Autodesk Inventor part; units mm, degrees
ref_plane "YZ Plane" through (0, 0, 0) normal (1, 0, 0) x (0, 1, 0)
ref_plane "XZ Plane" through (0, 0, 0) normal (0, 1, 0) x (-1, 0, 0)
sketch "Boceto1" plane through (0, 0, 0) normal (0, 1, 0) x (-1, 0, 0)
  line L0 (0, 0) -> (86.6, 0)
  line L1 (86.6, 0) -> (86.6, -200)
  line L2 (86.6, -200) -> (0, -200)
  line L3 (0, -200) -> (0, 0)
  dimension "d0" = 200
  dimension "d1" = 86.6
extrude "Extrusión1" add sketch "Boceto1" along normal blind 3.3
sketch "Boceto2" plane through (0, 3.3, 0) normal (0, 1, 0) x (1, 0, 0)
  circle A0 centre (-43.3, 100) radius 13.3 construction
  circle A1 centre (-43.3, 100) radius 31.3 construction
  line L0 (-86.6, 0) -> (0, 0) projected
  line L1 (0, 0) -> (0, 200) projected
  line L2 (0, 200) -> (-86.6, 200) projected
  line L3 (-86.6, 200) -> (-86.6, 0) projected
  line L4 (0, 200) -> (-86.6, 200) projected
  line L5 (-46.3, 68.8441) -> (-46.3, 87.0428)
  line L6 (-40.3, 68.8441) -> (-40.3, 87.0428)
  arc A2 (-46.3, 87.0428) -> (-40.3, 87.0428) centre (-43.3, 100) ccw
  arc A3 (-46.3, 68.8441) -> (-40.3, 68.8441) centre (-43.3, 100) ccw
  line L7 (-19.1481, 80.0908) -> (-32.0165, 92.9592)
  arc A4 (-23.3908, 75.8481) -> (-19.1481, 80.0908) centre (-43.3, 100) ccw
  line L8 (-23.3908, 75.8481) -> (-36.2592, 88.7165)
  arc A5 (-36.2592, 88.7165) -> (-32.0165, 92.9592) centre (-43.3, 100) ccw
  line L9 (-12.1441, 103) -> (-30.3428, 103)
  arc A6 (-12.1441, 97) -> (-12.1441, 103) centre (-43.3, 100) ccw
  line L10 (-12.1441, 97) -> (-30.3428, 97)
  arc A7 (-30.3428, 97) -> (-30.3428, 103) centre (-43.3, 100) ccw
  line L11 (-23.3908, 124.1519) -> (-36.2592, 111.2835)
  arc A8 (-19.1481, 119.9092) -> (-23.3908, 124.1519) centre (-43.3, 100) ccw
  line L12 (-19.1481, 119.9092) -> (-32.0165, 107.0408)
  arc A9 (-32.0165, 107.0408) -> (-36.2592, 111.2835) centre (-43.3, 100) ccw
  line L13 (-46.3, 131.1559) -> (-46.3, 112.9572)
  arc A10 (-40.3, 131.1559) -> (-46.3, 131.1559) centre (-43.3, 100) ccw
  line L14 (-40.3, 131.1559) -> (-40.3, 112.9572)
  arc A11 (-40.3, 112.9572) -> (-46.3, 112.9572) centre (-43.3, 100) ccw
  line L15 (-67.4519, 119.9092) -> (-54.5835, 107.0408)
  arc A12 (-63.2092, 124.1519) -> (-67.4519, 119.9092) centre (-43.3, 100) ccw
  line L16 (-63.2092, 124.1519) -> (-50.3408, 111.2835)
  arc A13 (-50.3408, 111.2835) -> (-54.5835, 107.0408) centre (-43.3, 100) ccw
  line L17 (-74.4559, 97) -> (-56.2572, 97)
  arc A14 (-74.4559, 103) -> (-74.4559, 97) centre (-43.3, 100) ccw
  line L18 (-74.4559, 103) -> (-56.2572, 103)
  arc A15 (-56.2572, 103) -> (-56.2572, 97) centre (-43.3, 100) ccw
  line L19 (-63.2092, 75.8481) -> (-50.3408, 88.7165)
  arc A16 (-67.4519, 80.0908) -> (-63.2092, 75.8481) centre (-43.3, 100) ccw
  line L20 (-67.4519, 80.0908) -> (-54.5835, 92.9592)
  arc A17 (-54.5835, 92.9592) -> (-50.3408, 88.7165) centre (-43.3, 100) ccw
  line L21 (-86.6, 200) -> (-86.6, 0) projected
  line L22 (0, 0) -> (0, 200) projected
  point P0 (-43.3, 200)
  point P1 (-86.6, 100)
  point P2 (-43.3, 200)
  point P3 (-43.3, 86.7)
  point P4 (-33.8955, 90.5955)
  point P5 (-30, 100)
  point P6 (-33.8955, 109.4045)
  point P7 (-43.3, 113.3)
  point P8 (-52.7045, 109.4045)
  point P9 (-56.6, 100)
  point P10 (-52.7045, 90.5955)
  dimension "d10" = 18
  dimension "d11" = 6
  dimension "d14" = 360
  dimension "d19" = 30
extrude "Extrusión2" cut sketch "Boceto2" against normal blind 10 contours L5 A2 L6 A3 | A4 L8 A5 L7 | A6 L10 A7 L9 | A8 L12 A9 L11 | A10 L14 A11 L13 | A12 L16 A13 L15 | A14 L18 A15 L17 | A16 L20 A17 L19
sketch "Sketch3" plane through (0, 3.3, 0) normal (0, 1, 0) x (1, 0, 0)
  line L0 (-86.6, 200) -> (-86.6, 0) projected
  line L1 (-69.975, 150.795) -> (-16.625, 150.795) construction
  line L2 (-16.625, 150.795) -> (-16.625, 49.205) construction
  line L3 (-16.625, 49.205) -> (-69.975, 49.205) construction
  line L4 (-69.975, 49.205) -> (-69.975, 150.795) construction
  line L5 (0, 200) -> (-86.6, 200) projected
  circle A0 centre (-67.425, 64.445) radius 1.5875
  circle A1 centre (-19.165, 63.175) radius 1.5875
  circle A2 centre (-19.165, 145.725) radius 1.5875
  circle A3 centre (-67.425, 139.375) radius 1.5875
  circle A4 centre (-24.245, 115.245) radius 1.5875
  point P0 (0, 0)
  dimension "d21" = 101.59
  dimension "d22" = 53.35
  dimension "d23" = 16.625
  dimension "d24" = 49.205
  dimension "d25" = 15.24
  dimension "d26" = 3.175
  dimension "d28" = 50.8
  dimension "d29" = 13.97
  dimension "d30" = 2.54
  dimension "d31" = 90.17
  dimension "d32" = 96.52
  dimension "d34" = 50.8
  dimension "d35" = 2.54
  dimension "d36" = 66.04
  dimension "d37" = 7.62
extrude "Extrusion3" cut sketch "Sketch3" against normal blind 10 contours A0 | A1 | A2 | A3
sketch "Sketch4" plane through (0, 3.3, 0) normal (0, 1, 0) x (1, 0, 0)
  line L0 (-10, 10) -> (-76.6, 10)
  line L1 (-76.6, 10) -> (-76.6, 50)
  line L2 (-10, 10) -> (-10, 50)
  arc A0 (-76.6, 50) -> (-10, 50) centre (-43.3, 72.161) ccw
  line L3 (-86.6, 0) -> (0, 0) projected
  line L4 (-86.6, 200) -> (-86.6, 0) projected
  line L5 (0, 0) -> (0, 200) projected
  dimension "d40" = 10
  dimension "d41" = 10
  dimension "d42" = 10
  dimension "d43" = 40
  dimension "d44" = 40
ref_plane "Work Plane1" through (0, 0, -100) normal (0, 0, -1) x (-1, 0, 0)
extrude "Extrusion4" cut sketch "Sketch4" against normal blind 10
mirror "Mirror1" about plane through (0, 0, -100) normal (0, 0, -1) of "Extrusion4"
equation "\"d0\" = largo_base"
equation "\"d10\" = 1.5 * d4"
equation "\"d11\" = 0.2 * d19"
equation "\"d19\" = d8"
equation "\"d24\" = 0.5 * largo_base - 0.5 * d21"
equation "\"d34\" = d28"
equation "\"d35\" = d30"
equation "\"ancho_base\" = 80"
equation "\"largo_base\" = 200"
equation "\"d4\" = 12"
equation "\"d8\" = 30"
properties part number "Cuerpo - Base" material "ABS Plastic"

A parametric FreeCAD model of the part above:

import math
import FreeCAD as App
import Part
import Sketcher
Q = App.Units.Quantity

doc = App.newDocument("Part")
body = doc.addObject("PartDesign::Body", "Body")

# Sketch on XZ plane
sketch1 = body.newObject("Sketcher::SketchObject", "Sketch")
sketch1.AttachmentSupport = (doc.getObject("XZ_Plane"), [""])
sketch1.MapMode = "FlatFace"
sketch1.addGeometry([
    Part.LineSegment(App.Vector(-86.6, 0, 0), App.Vector(0, 0, 0)),
    Part.LineSegment(App.Vector(0, 0, 0), App.Vector(0, -200, 0)),
    Part.LineSegment(App.Vector(0, -200, 0), App.Vector(-86.6, -200, 0)),
    Part.LineSegment(App.Vector(-86.6, -200, 0), App.Vector(-86.6, 0, 0)),
], False)
sketch1.addConstraint([
    Sketcher.Constraint("Coincident", 0, 2, 1, 1),
    Sketcher.Constraint("Coincident", 1, 2, 2, 1),
    Sketcher.Constraint("Coincident", 2, 2, 3, 1),
    Sketcher.Constraint("Coincident", 3, 2, 0, 1),
    Sketcher.Constraint("Horizontal", 0),
    Sketcher.Constraint("Vertical", 1),
    Sketcher.Constraint("Horizontal", 2),
    Sketcher.Constraint("Vertical", 3),
    Sketcher.Constraint("Coincident", 0, 2, -1, 1),
    Sketcher.Constraint("DistanceY", 1, 2, 1, 1, Q("200 mm")),
    Sketcher.Constraint("DistanceX", 0, 1, 0, 2, Q("86.6 mm")),
])
pad1 = body.newObject("PartDesign::Pad", "Pad")
pad1.Profile = sketch1
pad1.Length = 3.3
pad1.Reversed = True

# Sketch on XZ plane
sketch2 = body.newObject("Sketcher::SketchObject", "Sketch001")
sketch2.AttachmentSupport = (doc.getObject("XZ_Plane"), [""])
sketch2.MapMode = "FlatFace"
sketch2.AttachmentOffset = App.Placement(App.Vector(0, 0, -3.3), App.Rotation())
sketch2.addGeometry([
    Part.LineSegment(App.Vector(-46.3, -87.0428, 0), App.Vector(-46.3, -68.8441, 0)),  # 0
    Part.ArcOfCircle(Part.Circle(App.Vector(-43.3, -100, 0), App.Vector(0, 0, 1), 31.300002), math.radians(84.499949), math.radians(95.500051)),  # 1
    Part.LineSegment(App.Vector(-40.3, -68.8441, 0), App.Vector(-40.3, -87.0428, 0)),  # 2
    Part.ArcOfCircle(Part.Circle(App.Vector(-43.3, -100, 0), App.Vector(0, 0, 1), 13.299964), math.radians(76.963923), math.radians(103.036077)),  # 3
    Part.ArcOfCircle(Part.Circle(App.Vector(-43.3, -100, 0), App.Vector(0, 0, 1), 31.300008), math.radians(39.499873), math.radians(50.500127)),  # 4
    Part.LineSegment(App.Vector(-19.1481, -80.0908, 0), App.Vector(-32.0165, -92.9592, 0)),  # 5
    Part.ArcOfCircle(Part.Circle(App.Vector(-43.3, -100, 0), App.Vector(0, 0, 1), 13.300009), math.radians(31.963783), math.radians(58.036217)),  # 6
    Part.LineSegment(App.Vector(-36.2592, -88.7165, 0), App.Vector(-23.3908, -75.8481, 0)),  # 7
    Part.ArcOfCircle(Part.Circle(App.Vector(-43.3, -100, 0), App.Vector(0, 0, 1), 31.300002), math.radians(-5.500051), math.radians(5.500051)),  # 8
    Part.LineSegment(App.Vector(-12.1441, -103, 0), App.Vector(-30.3428, -103, 0)),  # 9
    Part.ArcOfCircle(Part.Circle(App.Vector(-43.3, -100, 0), App.Vector(0, 0, 1), 13.299964), math.radians(-13.036077), math.radians(13.036077)),  # 10
    Part.LineSegment(App.Vector(-30.3428, -97, 0), App.Vector(-12.1441, -97, 0)),  # 11
    Part.ArcOfCircle(Part.Circle(App.Vector(-43.3, -100, 0), App.Vector(0, 0, 1), 31.300008), math.radians(-50.500127), math.radians(-39.499873)),  # 12
    Part.LineSegment(App.Vector(-23.3908, -124.1519, 0), App.Vector(-36.2592, -111.2835, 0)),  # 13
    Part.ArcOfCircle(Part.Circle(App.Vector(-43.3, -100, 0), App.Vector(0, 0, 1), 13.300009), math.radians(-58.036217), math.radians(-31.963783)),  # 14
    Part.LineSegment(App.Vector(-32.0165, -107.0408, 0), App.Vector(-19.1481, -119.9092, 0)),  # 15
    Part.ArcOfCircle(Part.Circle(App.Vector(-43.3, -100, 0), App.Vector(0, 0, 1), 31.300002), math.radians(-95.500051), math.radians(-84.499949)),  # 16
    Part.LineSegment(App.Vector(-46.3, -131.1559, 0), App.Vector(-46.3, -112.9572, 0)),  # 17
    Part.ArcOfCircle(Part.Circle(App.Vector(-43.3, -100, 0), App.Vector(0, 0, 1), 13.299964), math.radians(-103.036077), math.radians(-76.963923)),  # 18
    Part.LineSegment(App.Vector(-40.3, -112.9572, 0), App.Vector(-40.3, -131.1559, 0)),  # 19
    Part.ArcOfCircle(Part.Circle(App.Vector(-43.3, -100, 0), App.Vector(0, 0, 1), 31.300008), math.radians(-140.500127), math.radians(-129.499873)),  # 20
    Part.LineSegment(App.Vector(-67.4519, -119.9092, 0), App.Vector(-54.5835, -107.0408, 0)),  # 21
    Part.ArcOfCircle(Part.Circle(App.Vector(-43.3, -100, 0), App.Vector(0, 0, 1), 13.300009), math.radians(-148.036217), math.radians(-121.963783)),  # 22
    Part.LineSegment(App.Vector(-50.3408, -111.2835, 0), App.Vector(-63.2092, -124.1519, 0)),  # 23
    Part.ArcOfCircle(Part.Circle(App.Vector(-43.3, -100, 0), App.Vector(0, 0, 1), 31.300002), math.radians(174.499949), math.radians(185.500051)),  # 24
    Part.LineSegment(App.Vector(-74.4559, -97, 0), App.Vector(-56.2572, -97, 0)),  # 25
    Part.ArcOfCircle(Part.Circle(App.Vector(-43.3, -100, 0), App.Vector(0, 0, 1), 13.299964), math.radians(166.963923), math.radians(193.036077)),  # 26
    Part.LineSegment(App.Vector(-56.2572, -103, 0), App.Vector(-74.4559, -103, 0)),  # 27
    Part.ArcOfCircle(Part.Circle(App.Vector(-43.3, -100, 0), App.Vector(0, 0, 1), 31.300008), math.radians(129.499873), math.radians(140.500127)),  # 28
    Part.LineSegment(App.Vector(-63.2092, -75.8481, 0), App.Vector(-50.3408, -88.7165, 0)),  # 29
    Part.ArcOfCircle(Part.Circle(App.Vector(-43.3, -100, 0), App.Vector(0, 0, 1), 13.300009), math.radians(121.963783), math.radians(148.036217)),  # 30
    Part.LineSegment(App.Vector(-54.5835, -92.9592, 0), App.Vector(-67.4519, -80.0908, 0)),  # 31
], False)
sketch2.addConstraint([
    Sketcher.Constraint("Coincident", 0, 2, 1, 2),
    Sketcher.Constraint("Coincident", 1, 1, 2, 1),
    Sketcher.Constraint("Coincident", 2, 2, 3, 1),
    Sketcher.Constraint("Coincident", 3, 2, 0, 1),
    Sketcher.Constraint("Coincident", 4, 1, 5, 1),
    Sketcher.Constraint("Coincident", 5, 2, 6, 1),
    Sketcher.Constraint("Coincident", 6, 2, 7, 1),
    Sketcher.Constraint("Coincident", 7, 2, 4, 2),
    Sketcher.Constraint("Coincident", 8, 1, 9, 1),
    Sketcher.Constraint("Coincident", 9, 2, 10, 1),
    Sketcher.Constraint("Coincident", 10, 2, 11, 1),
    Sketcher.Constraint("Coincident", 11, 2, 8, 2),
    Sketcher.Constraint("Coincident", 12, 1, 13, 1),
    Sketcher.Constraint("Coincident", 13, 2, 14, 1),
    Sketcher.Constraint("Coincident", 14, 2, 15, 1),
    Sketcher.Constraint("Coincident", 15, 2, 12, 2),
    Sketcher.Constraint("Coincident", 16, 1, 17, 1),
    Sketcher.Constraint("Coincident", 17, 2, 18, 1),
    Sketcher.Constraint("Coincident", 18, 2, 19, 1),
    Sketcher.Constraint("Coincident", 19, 2, 16, 2),
    Sketcher.Constraint("Coincident", 20, 1, 21, 1),
    Sketcher.Constraint("Coincident", 21, 2, 22, 1),
    Sketcher.Constraint("Coincident", 22, 2, 23, 1),
    Sketcher.Constraint("Coincident", 23, 2, 20, 2),
    Sketcher.Constraint("Coincident", 24, 1, 25, 1),
    Sketcher.Constraint("Coincident", 25, 2, 26, 1),
    Sketcher.Constraint("Coincident", 26, 2, 27, 1),
    Sketcher.Constraint("Coincident", 27, 2, 24, 2),
    Sketcher.Constraint("Coincident", 28, 1, 29, 1),
    Sketcher.Constraint("Coincident", 29, 2, 30, 1),
    Sketcher.Constraint("Coincident", 30, 2, 31, 1),
    Sketcher.Constraint("Coincident", 31, 2, 28, 2),
    Sketcher.Constraint("Vertical", 0),
    Sketcher.Constraint("Vertical", 2),
    Sketcher.Constraint("Horizontal", 9),
    Sketcher.Constraint("Horizontal", 11),
    Sketcher.Constraint("Vertical", 17),
    Sketcher.Constraint("Vertical", 19),
    Sketcher.Constraint("Horizontal", 25),
    Sketcher.Constraint("Horizontal", 27),
    Sketcher.Constraint("Coincident", 3, 3, 1, 3),
    Sketcher.Constraint("Coincident", 4, 3, 1, 3),
    Sketcher.Constraint("Coincident", 6, 3, 1, 3),
    Sketcher.Constraint("Coincident", 8, 3, 1, 3),
    Sketcher.Constraint("Coincident", 10, 3, 1, 3),
    Sketcher.Constraint("Coincident", 12, 3, 1, 3),
    Sketcher.Constraint("Coincident", 14, 3, 1, 3),
    Sketcher.Constraint("Coincident", 16, 3, 1, 3),
    Sketcher.Constraint("Coincident", 18, 3, 1, 3),
    Sketcher.Constraint("Coincident", 20, 3, 1, 3),
    Sketcher.Constraint("Coincident", 22, 3, 1, 3),
    Sketcher.Constraint("Coincident", 24, 3, 1, 3),
    Sketcher.Constraint("Coincident", 26, 3, 1, 3),
    Sketcher.Constraint("Coincident", 28, 3, 1, 3),
    Sketcher.Constraint("Coincident", 30, 3, 1, 3),
    Sketcher.Constraint("Equal", 1, 4),
    Sketcher.Constraint("Equal", 3, 6),
    Sketcher.Constraint("Equal", 4, 8),
    Sketcher.Constraint("Equal", 6, 10),
    Sketcher.Constraint("Equal", 8, 12),
    Sketcher.Constraint("Equal", 10, 14),
    Sketcher.Constraint("Equal", 12, 16),
    Sketcher.Constraint("Equal", 14, 18),
    Sketcher.Constraint("Equal", 16, 20),
    Sketcher.Constraint("Equal", 18, 22),
    Sketcher.Constraint("Equal", 20, 24),
    Sketcher.Constraint("Equal", 22, 26),
    Sketcher.Constraint("Equal", 24, 28),
    Sketcher.Constraint("Equal", 26, 30),
    Sketcher.Constraint("Parallel", 5, 7),
    Sketcher.Constraint("Perpendicular", 7, 13),
    Sketcher.Constraint("Parallel", 13, 15),
    Sketcher.Constraint("Perpendicular", 15, 21),
    Sketcher.Constraint("Parallel", 21, 23),
    Sketcher.Constraint("Perpendicular", 23, 29),
    Sketcher.Constraint("Parallel", 29, 31),
    Sketcher.Constraint("Horizontal", 0, 2, 1, 1),
    Sketcher.Constraint("Horizontal", 17, 2, 18, 2),
    Sketcher.Constraint("Horizontal", 15, 2, 20, 1),
    Sketcher.Constraint("Horizontal", 14, 2, 21, 2),
    Sketcher.Constraint("Horizontal", 13, 2, 22, 2),
    Sketcher.Constraint("Horizontal", 11, 2, 24, 1),
    Sketcher.Constraint("Horizontal", 9, 2, 26, 2),
    Sketcher.Constraint("Horizontal", 7, 2, 28, 1),
    Sketcher.Constraint("Horizontal", 5, 2, 30, 2),
    Sketcher.Constraint("Vertical", 9, 2, 10, 2),
    Sketcher.Constraint("Vertical", 7, 2, 12, 1),
    Sketcher.Constraint("Vertical", 5, 2, 14, 2),
    Sketcher.Constraint("Vertical", 3, 2, 16, 1),
    Sketcher.Constraint("Equal", 27, 0),
    Sketcher.Constraint("Equal", 5, 7),
    Sketcher.Constraint("DistanceX", 0, 2, 1, 1, Q("6 mm")),
    Sketcher.Constraint("Radius", 1, Q("31.3 mm")),
    Sketcher.Constraint("Radius", 3, Q("13.3 mm")),
    Sketcher.Constraint("DistanceY", 1, 3, -1, 1, Q("100 mm")),
    Sketcher.Constraint("DistanceX", 1, 3, -1, 1, Q("43.3 mm")),
    Sketcher.Constraint("DistanceX", 4, 1, -1, 1, Q("19.148 mm")),
])
pocket1 = body.newObject("PartDesign::Pocket", "Pocket")
pocket1.Profile = sketch2
pocket1.Length = 10
pocket1.Reversed = True

# Sketch on XZ plane
sketch3 = body.newObject("Sketcher::SketchObject", "Sketch002")
sketch3.AttachmentSupport = (doc.getObject("XZ_Plane"), [""])
sketch3.MapMode = "FlatFace"
sketch3.AttachmentOffset = App.Placement(App.Vector(0, 0, -3.3), App.Rotation())
sketch3.addGeometry([
    Part.Circle(App.Vector(-67.425, -64.445, 0), App.Vector(0, 0, 1), 1.5875),
    Part.Circle(App.Vector(-19.165, -63.175, 0), App.Vector(0, 0, 1), 1.5875),
    Part.Circle(App.Vector(-19.165, -145.725, 0), App.Vector(0, 0, 1), 1.5875),
    Part.Circle(App.Vector(-67.425, -139.375, 0), App.Vector(0, 0, 1), 1.5875),
], False)
sketch3.addConstraint([
    Sketcher.Constraint("Equal", 0, 1),
    Sketcher.Constraint("Equal", 1, 2),
    Sketcher.Constraint("Equal", 2, 3),
    Sketcher.Constraint("Vertical", 1, 3, 2, 3),
    Sketcher.Constraint("Vertical", 0, 3, 3, 3),
    Sketcher.Constraint("Diameter", 0, Q("3.175 mm")),
    Sketcher.Constraint("DistanceY", 3, 3, 1, 3, Q("76.2 mm")),
    Sketcher.Constraint("DistanceX", 0, 3, 1, 3, Q("48.26 mm")),
    Sketcher.Constraint("DistanceY", 0, 3, 1, 3, Q("1.27 mm")),
    Sketcher.Constraint("DistanceY", 2, 3, 1, 3, Q("82.55 mm")),
    Sketcher.Constraint("DistanceX", 0, 3, -1, 1, Q("67.425 mm")),
    Sketcher.Constraint("DistanceY", 0, 3, -1, 1, Q("64.445 mm")),
])
pocket2 = body.newObject("PartDesign::Pocket", "Pocket001")
pocket2.Profile = sketch3
pocket2.Length = 10
pocket2.Reversed = True

# Sketch on XZ plane
sketch4 = body.newObject("Sketcher::SketchObject", "Sketch003")
sketch4.AttachmentSupport = (doc.getObject("XZ_Plane"), [""])
sketch4.MapMode = "FlatFace"
sketch4.AttachmentOffset = App.Placement(App.Vector(0, 0, -3.3), App.Rotation())
sketch4.addGeometry([
    Part.LineSegment(App.Vector(-76.6, -10, 0), App.Vector(-10, -10, 0)),
    Part.LineSegment(App.Vector(-10, -10, 0), App.Vector(-10, -50, 0)),
    Part.ArcOfCircle(Part.Circle(App.Vector(-43.3, -72.161, 0), App.Vector(0, 0, 1), 39.999999), math.radians(33.643586), math.radians(146.356414)),
    Part.LineSegment(App.Vector(-76.6, -50, 0), App.Vector(-76.6, -10, 0)),
], False)
sketch4.addConstraint([
    Sketcher.Constraint("Coincident", 0, 2, 1, 1),
    Sketcher.Constraint("Coincident", 1, 2, 2, 1),
    Sketcher.Constraint("Coincident", 2, 2, 3, 1),
    Sketcher.Constraint("Coincident", 3, 2, 0, 1),
    Sketcher.Constraint("Horizontal", 0),
    Sketcher.Constraint("Vertical", 1),
    Sketcher.Constraint("Vertical", 3),
    Sketcher.Constraint("Horizontal", 1, 2, 2, 2),
    Sketcher.Constraint("Radius", 2, Q("40 mm")),
    Sketcher.Constraint("DistanceY", 1, 2, 1, 1, Q("40 mm")),
    Sketcher.Constraint("DistanceX", 0, 2, -1, 1, Q("10 mm")),
    Sketcher.Constraint("DistanceY", 0, 2, -1, 1, Q("10 mm")),
    Sketcher.Constraint("DistanceX", 0, 1, 0, 2, Q("66.6 mm")),
])
pocket3 = body.newObject("PartDesign::Pocket", "Pocket002")
pocket3.Profile = sketch4
pocket3.Length = 10
pocket3.Reversed = True
doc.recompute()

datumplane = body.newObject("PartDesign::Plane", "DatumPlane")
datumplane.AttachmentSupport = (doc.getObject("XY_Plane"), [""])
datumplane.MapMode = "FlatFace"
datumplane.AttachmentOffset = App.Placement(App.Vector(0, 0, -100), App.Rotation())
mirrored = body.newObject("PartDesign::Mirrored", "Mirrored")
mirrored.Originals = [pocket3]
mirrored.MirrorPlane = (datumplane, [""])
body.Tip = mirrored

doc.recompute()
